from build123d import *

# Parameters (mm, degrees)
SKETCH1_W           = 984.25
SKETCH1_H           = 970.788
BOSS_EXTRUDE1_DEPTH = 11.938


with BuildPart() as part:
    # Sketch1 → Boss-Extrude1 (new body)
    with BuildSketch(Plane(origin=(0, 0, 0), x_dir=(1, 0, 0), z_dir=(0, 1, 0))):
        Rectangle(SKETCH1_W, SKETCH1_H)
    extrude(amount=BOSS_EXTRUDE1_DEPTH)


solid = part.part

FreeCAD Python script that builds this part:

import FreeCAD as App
import Part
import Sketcher
Q = App.Units.Quantity

doc = App.newDocument("Part")
params = doc.addObject("Spreadsheet::Sheet", "Params")
for row, (alias, value) in enumerate([
    ("sketch1_width", "38.75 in"),
    ("sketch1_height", "38.22 in"),
    ("pad1_length", "0.47 in"),
], start=1):
    params.set(f"A{row}", alias)
    params.set(f"B{row}", "=" + value)
    params.setAlias(f"B{row}", alias)

body = doc.addObject("PartDesign::Body", "Body")

sketch1 = doc.addObject("Sketcher::SketchObject", "Sketch")
body.addObject(sketch1)
sketch1.AttachmentSupport = (doc.XZ_Plane, [""])
sketch1.MapMode = "FlatFace"
sketch1.addGeometry([
    Part.LineSegment(App.Vector(-492, -485, 0), App.Vector(-492, 485, 0)),
    Part.LineSegment(App.Vector(-492, 485, 0), App.Vector(492, 485, 0)),
    Part.LineSegment(App.Vector(492, 485, 0), App.Vector(492, -485, 0)),
    Part.LineSegment(App.Vector(492, -485, 0), App.Vector(-492, -485, 0)),
], False)
sketch1.addConstraint([
    Sketcher.Constraint("Coincident", 0, 2, 1, 1),
    Sketcher.Constraint("Coincident", 1, 2, 2, 1),
    Sketcher.Constraint("Coincident", 2, 2, 3, 1),
    Sketcher.Constraint("Coincident", 3, 2, 0, 1),
    Sketcher.Constraint("Vertical", 0),
    Sketcher.Constraint("Horizontal", 1),
    Sketcher.Constraint("Vertical", 2),
    Sketcher.Constraint("Horizontal", 3),
    Sketcher.Constraint("Symmetric", 0, 2, 2, 2, -1, 1),
    Sketcher.Constraint("DistanceX", 1, 1, 1, 2, Q("38.75 in")),
    Sketcher.Constraint("DistanceY", 0, 1, 0, 2, Q("38.22 in")),
])
sketch1.setExpression("Constraints[9]", "Params.sketch1_width")
sketch1.setExpression("Constraints[10]", "Params.sketch1_height")
pad1 = doc.addObject("PartDesign::Pad", "Pad")
body.addObject(pad1)
pad1.Profile = sketch1
pad1.setExpression("Length", "Params.pad1_length")
pad1.Reversed = True

doc.recompute()
